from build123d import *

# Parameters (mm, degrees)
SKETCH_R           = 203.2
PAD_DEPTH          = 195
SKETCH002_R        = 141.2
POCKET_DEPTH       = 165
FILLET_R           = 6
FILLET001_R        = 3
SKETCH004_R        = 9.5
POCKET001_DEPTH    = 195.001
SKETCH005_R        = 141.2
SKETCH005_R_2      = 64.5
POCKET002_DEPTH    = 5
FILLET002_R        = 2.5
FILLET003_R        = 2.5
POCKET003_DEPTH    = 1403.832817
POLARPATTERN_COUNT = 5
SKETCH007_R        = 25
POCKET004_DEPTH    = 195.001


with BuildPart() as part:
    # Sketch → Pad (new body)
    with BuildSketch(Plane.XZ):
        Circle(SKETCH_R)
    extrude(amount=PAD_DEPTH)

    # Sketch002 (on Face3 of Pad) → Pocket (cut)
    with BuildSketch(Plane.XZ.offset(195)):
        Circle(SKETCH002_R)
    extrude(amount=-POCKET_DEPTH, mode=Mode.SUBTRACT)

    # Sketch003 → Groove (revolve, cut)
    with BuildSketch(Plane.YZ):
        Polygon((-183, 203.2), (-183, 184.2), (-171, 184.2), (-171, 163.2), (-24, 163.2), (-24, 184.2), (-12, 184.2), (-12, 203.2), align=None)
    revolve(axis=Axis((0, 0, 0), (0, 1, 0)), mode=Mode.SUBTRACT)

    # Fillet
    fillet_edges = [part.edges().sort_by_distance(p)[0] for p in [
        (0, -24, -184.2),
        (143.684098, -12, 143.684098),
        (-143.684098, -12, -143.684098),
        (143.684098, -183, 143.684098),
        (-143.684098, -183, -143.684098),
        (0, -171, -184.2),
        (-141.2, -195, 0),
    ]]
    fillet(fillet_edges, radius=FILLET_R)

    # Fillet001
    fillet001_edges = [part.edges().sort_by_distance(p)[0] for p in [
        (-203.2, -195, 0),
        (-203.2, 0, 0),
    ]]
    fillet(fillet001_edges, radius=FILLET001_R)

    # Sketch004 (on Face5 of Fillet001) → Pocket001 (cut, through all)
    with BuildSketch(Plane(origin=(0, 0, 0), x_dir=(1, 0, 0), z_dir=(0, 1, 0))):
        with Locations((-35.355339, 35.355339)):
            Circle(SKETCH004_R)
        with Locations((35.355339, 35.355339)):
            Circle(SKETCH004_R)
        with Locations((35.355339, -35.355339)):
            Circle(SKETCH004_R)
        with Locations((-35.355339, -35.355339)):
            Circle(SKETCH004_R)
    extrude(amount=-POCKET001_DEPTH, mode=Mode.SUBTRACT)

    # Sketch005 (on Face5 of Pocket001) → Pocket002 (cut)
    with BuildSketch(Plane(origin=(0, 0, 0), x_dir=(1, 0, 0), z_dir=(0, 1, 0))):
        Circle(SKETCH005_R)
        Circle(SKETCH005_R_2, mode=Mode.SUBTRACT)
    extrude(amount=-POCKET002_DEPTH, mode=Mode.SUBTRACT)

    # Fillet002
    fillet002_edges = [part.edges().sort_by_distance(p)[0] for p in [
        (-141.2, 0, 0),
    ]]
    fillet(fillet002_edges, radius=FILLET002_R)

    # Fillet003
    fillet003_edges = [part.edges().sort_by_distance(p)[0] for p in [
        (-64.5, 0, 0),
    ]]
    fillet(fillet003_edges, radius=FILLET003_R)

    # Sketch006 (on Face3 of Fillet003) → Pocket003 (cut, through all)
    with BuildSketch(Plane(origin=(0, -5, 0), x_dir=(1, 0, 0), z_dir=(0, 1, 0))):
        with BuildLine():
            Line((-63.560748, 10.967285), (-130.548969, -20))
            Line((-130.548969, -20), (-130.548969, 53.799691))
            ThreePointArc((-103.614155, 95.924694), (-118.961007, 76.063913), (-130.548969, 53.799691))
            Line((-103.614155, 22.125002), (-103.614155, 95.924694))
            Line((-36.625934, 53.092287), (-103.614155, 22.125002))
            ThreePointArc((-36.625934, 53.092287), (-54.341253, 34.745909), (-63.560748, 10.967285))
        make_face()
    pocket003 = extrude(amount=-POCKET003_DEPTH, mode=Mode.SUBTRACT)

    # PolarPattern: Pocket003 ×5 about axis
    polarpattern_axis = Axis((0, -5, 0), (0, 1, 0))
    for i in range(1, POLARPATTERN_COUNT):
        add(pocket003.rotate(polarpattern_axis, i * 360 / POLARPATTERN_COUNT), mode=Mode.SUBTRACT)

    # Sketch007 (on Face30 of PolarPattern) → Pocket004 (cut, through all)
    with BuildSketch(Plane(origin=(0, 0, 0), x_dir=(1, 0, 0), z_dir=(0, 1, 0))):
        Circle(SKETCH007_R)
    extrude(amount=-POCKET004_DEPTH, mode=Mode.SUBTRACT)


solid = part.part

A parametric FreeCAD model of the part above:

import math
import FreeCAD as App
import Part
import Sketcher

V = App.Vector
Q = App.Units.Quantity


def edges_at(feature, points):
    """Names of the edges that pass closest to the given points."""
    edges = feature.Shape.Edges
    near = lambda p: min(range(len(edges)), key=lambda i: edges[i].distToShape(Part.Vertex(*p))[0])
    return sorted({f"Edge{near(p) + 1}" for p in points})


def add_polygon(sketch, points):
    """Adds a closed chain of lines whose ends are joined by coincident constraints."""
    first, n = sketch.GeometryCount, len(points)
    for a, b in zip(points, points[1:] + points[:1]):
        sketch.addGeometry(Part.LineSegment(App.Vector(*a, 0), App.Vector(*b, 0)), False)
    for i in range(n):
        sketch.addConstraint(Sketcher.Constraint("Coincident", first + i, 2, first + (i + 1) % n, 1))

doc = App.newDocument("Part")
body = doc.addObject("PartDesign::Body", "Body")

# Sketch on XZ plane
sketch1 = body.newObject("Sketcher::SketchObject", "Sketch")
sketch1.AttachmentSupport = (doc.getObject("XZ_Plane"), [""])
sketch1.MapMode = "FlatFace"
sketch1.addGeometry(Part.Circle(V(0, 0, 0), V(0, 0, 1), 203), False)
sketch1.addConstraint([
    Sketcher.Constraint("Coincident", 0, 3, -1, 1),
    Sketcher.Constraint("Diameter", 0, Q("406.4 mm")),
])
pad1 = body.newObject("PartDesign::Pad", "Pad")
pad1.Profile = sketch1
pad1.Length = 195

# Sketch on XZ plane
sketch2 = body.newObject("Sketcher::SketchObject", "Sketch001")
sketch2.AttachmentSupport = (doc.getObject("XZ_Plane"), [""])
sketch2.MapMode = "FlatFace"
sketch2.AttachmentOffset = App.Placement(V(0, 0, 195), App.Rotation())
sketch2.addGeometry(Part.Circle(V(0, 0, 0), V(0, 0, 1), 141), False)
sketch2.addConstraint([
    Sketcher.Constraint("Coincident", 0, 3, -1, 1),
    Sketcher.Constraint("Diameter", 0, Q("282.4 mm")),
])
pocket1 = body.newObject("PartDesign::Pocket", "Pocket")
pocket1.Profile = sketch2
pocket1.Length = 165

# Sketch on YZ plane
sketch3 = body.newObject("Sketcher::SketchObject", "Sketch002")
sketch3.AttachmentSupport = (doc.getObject("YZ_Plane"), [""])
sketch3.MapMode = "FlatFace"
add_polygon(sketch3, [(-183, 203), (-183, 184), (-171, 184), (-171, 163), (-24, 163), (-24, 184), (-12, 184), (-12, 203)])  # lines 0-7
sketch3.addConstraint([
    Sketcher.Constraint("Vertical", 0),
    Sketcher.Constraint("Horizontal", 1),
    Sketcher.Constraint("Vertical", 2),
    Sketcher.Constraint("Horizontal", 3),
    Sketcher.Constraint("Vertical", 4),
    Sketcher.Constraint("Horizontal", 5),
    Sketcher.Constraint("Vertical", 6),
    Sketcher.Constraint("Horizontal", 7),
    Sketcher.Constraint("Horizontal", 1, 2, 4, 2),
    Sketcher.Constraint("Equal", 1, 5),
    Sketcher.Constraint("DistanceX", 1, 1, 1, 2, Q("12 mm")),
    Sketcher.Constraint("DistanceX", 3, 1, 3, 2, Q("147 mm")),
    Sketcher.Constraint("DistanceY", 0, 2, 0, 1, Q("19 mm")),
    Sketcher.Constraint("DistanceY", 2, 2, 2, 1, Q("21 mm")),
    Sketcher.Constraint("DistanceX", 0, 2, -1, 1, Q("183 mm")),
    Sketcher.Constraint("DistanceY", -1, 1, 0, 2, Q("184.2 mm")),
])
groove = body.newObject("PartDesign::Groove", "Groove")
groove.Profile = sketch3
groove.ReferenceAxis = (sketch3, ["H_Axis"])
groove.Angle = 360
doc.recompute()

fillet = body.newObject("PartDesign::Fillet", "Fillet")
fillet.Base = (groove, edges_at(groove, [
    (0, -24, -184.2),
    (-203.2, -12, 0),
    (-203.2, -12, 0),
    (-203.2, -183, 0),
    (-203.2, -183, 0),
    (0, -171, -184.2),
    (-141.2, -195, 0),
]))
fillet.Radius = 6
doc.recompute()

fillet2 = body.newObject("PartDesign::Fillet", "Fillet001")
fillet2.Base = (fillet, edges_at(fillet, [(-203.2, -195, 0), (-203.2, 0, 0)]))
fillet2.Radius = 3

# Sketch on XZ plane
sketch4 = body.newObject("Sketcher::SketchObject", "Sketch003")
sketch4.AttachmentSupport = (doc.getObject("XZ_Plane"), [""])
sketch4.MapMode = "FlatFace"
sketch4.addGeometry([
    Part.Circle(V(-35, -35, 0), V(0, 0, 1), 10),
    Part.Circle(V(35, -35, 0), V(0, 0, 1), 10),
    Part.Circle(V(35, 35, 0), V(0, 0, 1), 10),
    Part.Circle(V(-35, 35, 0), V(0, 0, 1), 10),
], False)
sketch4.addConstraint([
    Sketcher.Constraint("Equal", 0, 1),
    Sketcher.Constraint("Equal", 1, 2),
    Sketcher.Constraint("Equal", 2, 3),
    Sketcher.Constraint("Symmetric", 0, 3, 2, 3, -1, 1),
    Sketcher.Constraint("Symmetric", 1, 3, 3, 3, -1, 1),
    Sketcher.Constraint("Symmetric", 0, 3, 1, 3, -2),
    Sketcher.Constraint("Diameter", 0, Q("19 mm")),
    Sketcher.Constraint("DistanceX", 0, 3, -1, 1, Q("35.355339 mm")),
    Sketcher.Constraint("DistanceY", 0, 3, -1, 1, Q("35.355339 mm")),
])
pocket2 = body.newObject("PartDesign::Pocket", "Pocket001")
pocket2.Profile = sketch4
pocket2.Type = "ThroughAll"
pocket2.Reversed = True

# Sketch on XZ plane
sketch5 = body.newObject("Sketcher::SketchObject", "Sketch004")
sketch5.AttachmentSupport = (doc.getObject("XZ_Plane"), [""])
sketch5.MapMode = "FlatFace"
sketch5.addGeometry([
    Part.Circle(V(0, 0, 0), V(0, 0, 1), 141),
    Part.Circle(V(0, 0, 0), V(0, 0, 1), 64),
], False)
sketch5.addConstraint([
    Sketcher.Constraint("Coincident", 0, 3, -1, 1),
    Sketcher.Constraint("Coincident", 1, 3, -1, 1),
    Sketcher.Constraint("Diameter", 1, Q("129 mm")),
    Sketcher.Constraint("Diameter", 0, Q("282.4 mm")),
])
pocket3 = body.newObject("PartDesign::Pocket", "Pocket002")
pocket3.Profile = sketch5
pocket3.Length = 5
pocket3.Reversed = True
doc.recompute()

fillet3 = body.newObject("PartDesign::Fillet", "Fillet002")
fillet3.Base = (pocket3, edges_at(pocket3, [(-141.2, 0, 0)]))
fillet3.Radius = 2.5
doc.recompute()

fillet4 = body.newObject("PartDesign::Fillet", "Fillet003")
fillet4.Base = (fillet3, edges_at(fillet3, [(-64.5, 0, 0)]))
fillet4.Radius = 2.5

# Sketch on XZ plane
sketch6 = body.newObject("Sketcher::SketchObject", "Sketch005")
sketch6.AttachmentSupport = (doc.getObject("XZ_Plane"), [""])
sketch6.MapMode = "FlatFace"
sketch6.AttachmentOffset = App.Placement(V(0, 0, 5), App.Rotation())
sketch6.addGeometry([
    Part.LineSegment(V(-131, 20, 0), V(-64, -11, 0)),  # 0
    Part.ArcOfCircle(Part.Circle(V(0, 0, 0), V(0, 0, 1), 65), math.radians(-170), math.radians(-125)),  # 1
    Part.LineSegment(V(-37, -53, 0), V(-104, -22, 0)),  # 2
    Part.LineSegment(V(-104, -22, 0), V(-104, -96, 0)),  # 3
    Part.ArcOfCircle(Part.Circle(V(0, 0, 0), V(0, 0, 1), 141), math.radians(-158), math.radians(-137)),  # 4
    Part.LineSegment(V(-131, -54, 0), V(-131, 20, 0)),  # 5
], False)
sketch6.addConstraint([
    Sketcher.Constraint("Coincident", 0, 2, 1, 1),
    Sketcher.Constraint("Coincident", 1, 2, 2, 1),
    Sketcher.Constraint("Coincident", 2, 2, 3, 1),
    Sketcher.Constraint("Coincident", 3, 2, 4, 2),
    Sketcher.Constraint("Coincident", 4, 1, 5, 1),
    Sketcher.Constraint("Coincident", 5, 2, 0, 1),
    Sketcher.Constraint("Vertical", 3),
    Sketcher.Constraint("Vertical", 5),
    Sketcher.Constraint("Coincident", 1, 3, -1, 1),
    Sketcher.Constraint("Coincident", 4, 3, -1, 1),
    Sketcher.Constraint("Parallel", 0, 2),
    Sketcher.Constraint("Equal", 3, 5),
    Sketcher.Constraint("Equal", 0, 2),
    Sketcher.Constraint("Radius", 4, Q("141.2 mm")),
    Sketcher.Constraint("DistanceY", -1, 1, 5, 2, Q("20 mm")),
    Sketcher.Constraint("DistanceY", 2, 2, -1, 1, Q("22.125002 mm")),
    Sketcher.Constraint("Radius", 1, Q("64.500003 mm")),
    Sketcher.Constraint("DistanceY", 5, 1, 5, 2, Q("73.799691 mm")),
])
pocket4 = body.newObject("PartDesign::Pocket", "Pocket003")
pocket4.Profile = sketch6
pocket4.Type = "ThroughAll"
pocket4.Reversed = True
doc.recompute()

polarpattern = body.newObject("PartDesign::PolarPattern", "PolarPattern")
polarpattern.Originals = [pocket4]
polarpattern.Axis = (doc.getObject("Y_Axis"), [""])
polarpattern.Angle = 360
polarpattern.Occurrences = 5
body.Tip = polarpattern

# Sketch on XZ plane
sketch7 = body.newObject("Sketcher::SketchObject", "Sketch006")
sketch7.AttachmentSupport = (doc.getObject("XZ_Plane"), [""])
sketch7.MapMode = "FlatFace"
sketch7.addGeometry(Part.Circle(V(0, 0, 0), V(0, 0, 1), 25), False)
sketch7.addConstraint([
    Sketcher.Constraint("Coincident", 0, 3, -1, 1),
    Sketcher.Constraint("Diameter", 0, Q("50 mm")),
])
pocket5 = body.newObject("PartDesign::Pocket", "Pocket004")
pocket5.Profile = sketch7
pocket5.Type = "ThroughAll"
pocket5.Reversed = True

doc.recompute()
